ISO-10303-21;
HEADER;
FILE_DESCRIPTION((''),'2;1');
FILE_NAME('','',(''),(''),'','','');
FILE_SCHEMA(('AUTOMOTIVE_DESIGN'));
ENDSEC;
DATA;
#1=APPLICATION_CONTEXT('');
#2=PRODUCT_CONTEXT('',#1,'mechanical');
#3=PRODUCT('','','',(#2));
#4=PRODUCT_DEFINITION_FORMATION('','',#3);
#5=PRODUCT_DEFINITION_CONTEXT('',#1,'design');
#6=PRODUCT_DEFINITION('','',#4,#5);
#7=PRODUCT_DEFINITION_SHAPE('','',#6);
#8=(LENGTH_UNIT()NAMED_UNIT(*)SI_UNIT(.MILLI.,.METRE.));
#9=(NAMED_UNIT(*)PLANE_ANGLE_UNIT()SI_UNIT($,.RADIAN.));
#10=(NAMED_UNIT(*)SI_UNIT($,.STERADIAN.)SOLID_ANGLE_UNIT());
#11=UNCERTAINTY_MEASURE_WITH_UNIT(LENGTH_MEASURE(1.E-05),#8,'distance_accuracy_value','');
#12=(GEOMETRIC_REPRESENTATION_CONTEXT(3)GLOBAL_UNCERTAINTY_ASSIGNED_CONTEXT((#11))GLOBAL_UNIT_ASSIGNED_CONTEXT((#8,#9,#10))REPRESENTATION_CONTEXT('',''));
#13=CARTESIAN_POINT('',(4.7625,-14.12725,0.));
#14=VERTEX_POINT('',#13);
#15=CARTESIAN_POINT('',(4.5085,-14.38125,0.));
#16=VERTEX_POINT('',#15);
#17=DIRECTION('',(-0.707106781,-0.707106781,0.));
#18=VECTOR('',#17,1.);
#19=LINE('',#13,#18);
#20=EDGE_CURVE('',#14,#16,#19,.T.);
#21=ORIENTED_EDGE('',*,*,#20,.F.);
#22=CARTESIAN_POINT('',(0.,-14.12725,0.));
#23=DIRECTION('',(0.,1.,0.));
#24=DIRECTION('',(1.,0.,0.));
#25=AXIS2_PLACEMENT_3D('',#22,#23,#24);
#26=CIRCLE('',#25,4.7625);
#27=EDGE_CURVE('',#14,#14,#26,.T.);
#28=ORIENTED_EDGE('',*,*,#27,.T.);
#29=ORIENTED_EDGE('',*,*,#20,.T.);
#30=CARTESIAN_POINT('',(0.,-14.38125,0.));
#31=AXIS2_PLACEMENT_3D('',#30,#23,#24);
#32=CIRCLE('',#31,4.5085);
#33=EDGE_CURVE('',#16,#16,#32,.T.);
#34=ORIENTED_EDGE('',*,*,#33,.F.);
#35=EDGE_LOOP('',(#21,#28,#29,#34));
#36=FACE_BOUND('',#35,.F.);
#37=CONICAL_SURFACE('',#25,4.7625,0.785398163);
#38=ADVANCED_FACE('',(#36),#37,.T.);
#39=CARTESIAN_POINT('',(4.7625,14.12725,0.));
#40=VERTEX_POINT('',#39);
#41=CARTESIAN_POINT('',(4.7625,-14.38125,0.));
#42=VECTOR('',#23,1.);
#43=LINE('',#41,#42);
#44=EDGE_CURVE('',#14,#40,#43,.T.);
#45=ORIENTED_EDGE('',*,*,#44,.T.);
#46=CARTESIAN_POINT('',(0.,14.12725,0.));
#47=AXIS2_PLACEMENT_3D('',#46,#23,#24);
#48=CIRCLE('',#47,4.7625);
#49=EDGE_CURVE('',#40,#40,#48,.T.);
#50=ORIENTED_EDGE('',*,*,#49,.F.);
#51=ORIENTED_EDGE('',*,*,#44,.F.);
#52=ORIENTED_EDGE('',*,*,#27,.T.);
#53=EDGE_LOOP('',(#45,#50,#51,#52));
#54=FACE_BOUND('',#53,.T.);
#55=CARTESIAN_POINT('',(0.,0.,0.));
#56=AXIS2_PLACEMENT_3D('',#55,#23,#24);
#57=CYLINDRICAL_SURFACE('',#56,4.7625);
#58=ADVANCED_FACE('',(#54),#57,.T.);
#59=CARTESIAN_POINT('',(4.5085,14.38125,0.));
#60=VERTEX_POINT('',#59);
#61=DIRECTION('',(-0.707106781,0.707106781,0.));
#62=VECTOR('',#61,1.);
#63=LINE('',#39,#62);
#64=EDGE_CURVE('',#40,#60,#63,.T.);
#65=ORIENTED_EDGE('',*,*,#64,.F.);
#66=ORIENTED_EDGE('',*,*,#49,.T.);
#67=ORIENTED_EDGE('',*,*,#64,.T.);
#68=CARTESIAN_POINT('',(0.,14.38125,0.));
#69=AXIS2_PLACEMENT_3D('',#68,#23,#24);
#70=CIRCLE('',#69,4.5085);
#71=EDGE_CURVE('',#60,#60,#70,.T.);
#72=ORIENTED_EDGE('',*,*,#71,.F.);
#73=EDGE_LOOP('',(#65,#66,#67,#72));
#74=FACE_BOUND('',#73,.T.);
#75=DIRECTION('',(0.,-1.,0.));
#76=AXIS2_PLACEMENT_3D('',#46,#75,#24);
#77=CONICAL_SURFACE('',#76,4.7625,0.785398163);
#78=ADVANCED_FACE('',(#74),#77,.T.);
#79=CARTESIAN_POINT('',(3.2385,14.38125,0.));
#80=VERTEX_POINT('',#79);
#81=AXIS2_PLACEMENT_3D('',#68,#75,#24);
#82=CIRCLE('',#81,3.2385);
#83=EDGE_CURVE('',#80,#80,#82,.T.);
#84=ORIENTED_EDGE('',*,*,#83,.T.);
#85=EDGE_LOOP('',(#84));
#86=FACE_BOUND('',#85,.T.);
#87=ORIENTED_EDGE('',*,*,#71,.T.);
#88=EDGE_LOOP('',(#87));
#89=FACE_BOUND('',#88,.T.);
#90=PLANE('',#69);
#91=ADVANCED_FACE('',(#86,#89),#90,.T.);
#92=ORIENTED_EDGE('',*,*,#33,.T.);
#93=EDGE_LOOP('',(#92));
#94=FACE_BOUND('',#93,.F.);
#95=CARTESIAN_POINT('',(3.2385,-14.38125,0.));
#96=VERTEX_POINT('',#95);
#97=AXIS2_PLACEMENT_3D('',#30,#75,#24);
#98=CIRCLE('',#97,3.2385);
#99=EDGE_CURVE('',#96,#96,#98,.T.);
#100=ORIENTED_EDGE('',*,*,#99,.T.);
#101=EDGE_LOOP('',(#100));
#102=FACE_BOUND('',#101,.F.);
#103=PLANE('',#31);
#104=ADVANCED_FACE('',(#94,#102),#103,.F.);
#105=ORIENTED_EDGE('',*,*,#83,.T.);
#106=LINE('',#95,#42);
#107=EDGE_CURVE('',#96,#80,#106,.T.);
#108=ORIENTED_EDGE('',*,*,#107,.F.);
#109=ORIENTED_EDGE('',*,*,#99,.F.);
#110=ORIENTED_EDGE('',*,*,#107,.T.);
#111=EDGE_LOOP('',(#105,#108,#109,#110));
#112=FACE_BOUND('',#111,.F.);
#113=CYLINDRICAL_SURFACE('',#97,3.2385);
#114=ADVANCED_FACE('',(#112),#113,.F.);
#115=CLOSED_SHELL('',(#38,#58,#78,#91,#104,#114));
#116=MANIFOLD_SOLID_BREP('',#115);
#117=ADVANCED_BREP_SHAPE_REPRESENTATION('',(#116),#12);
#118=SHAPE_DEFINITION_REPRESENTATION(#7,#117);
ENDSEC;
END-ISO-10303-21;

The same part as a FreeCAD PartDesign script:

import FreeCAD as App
import Part
import Sketcher
Q = App.Units.Quantity


def edges_at(feature, points):
    """Names of the edges that pass closest to the given points."""
    edges = feature.Shape.Edges
    near = lambda p: min(range(len(edges)), key=lambda i: edges[i].distToShape(Part.Vertex(*p))[0])
    return sorted({f"Edge{near(p) + 1}" for p in points})

doc = App.newDocument("Part")
body = doc.addObject("PartDesign::Body", "Body")

# Sketch on XZ plane
sketch1 = body.newObject("Sketcher::SketchObject", "Sketch")
sketch1.AttachmentSupport = (doc.getObject("XZ_Plane"), [""])
sketch1.MapMode = "FlatFace"
sketch1.addGeometry(Part.Circle(App.Vector(0, 0, 0), App.Vector(0, 0, 1), 4.8), False)
sketch1.addConstraint([
    Sketcher.Constraint("Coincident", 0, 3, -1, 1),
    Sketcher.Constraint("Diameter", 0, Q("0.375 in")),
])
pad1 = body.newObject("PartDesign::Pad", "Pad")
pad1.Profile = sketch1
pad1.Length = 28.7625
pad1.Midplane = True
doc.recompute()

chamfer = body.newObject("PartDesign::Chamfer", "Chamfer")
chamfer.Base = (pad1, edges_at(pad1, [(-4.763, -14.381, 0), (-4.763, 14.381, 0)]))
chamfer.Size = Q("0.01 in")

# Sketch on XZ plane
sketch2 = body.newObject("Sketcher::SketchObject", "Sketch001")
sketch2.AttachmentSupport = (doc.getObject("XZ_Plane"), [""])
sketch2.MapMode = "FlatFace"
sketch2.AttachmentOffset = App.Placement(App.Vector(0, 0, 14.38125), App.Rotation())
sketch2.addGeometry(Part.Circle(App.Vector(0, 0, 0), App.Vector(0, 0, 1), 3.2), False)
sketch2.addConstraint([
    Sketcher.Constraint("Coincident", 0, 3, -1, 1),
    Sketcher.Constraint("Diameter", 0, Q("0.255 in")),
])
pocket1 = body.newObject("PartDesign::Pocket", "Pocket")
pocket1.Profile = sketch2
pocket1.Type = "ThroughAll"

doc.recompute()
